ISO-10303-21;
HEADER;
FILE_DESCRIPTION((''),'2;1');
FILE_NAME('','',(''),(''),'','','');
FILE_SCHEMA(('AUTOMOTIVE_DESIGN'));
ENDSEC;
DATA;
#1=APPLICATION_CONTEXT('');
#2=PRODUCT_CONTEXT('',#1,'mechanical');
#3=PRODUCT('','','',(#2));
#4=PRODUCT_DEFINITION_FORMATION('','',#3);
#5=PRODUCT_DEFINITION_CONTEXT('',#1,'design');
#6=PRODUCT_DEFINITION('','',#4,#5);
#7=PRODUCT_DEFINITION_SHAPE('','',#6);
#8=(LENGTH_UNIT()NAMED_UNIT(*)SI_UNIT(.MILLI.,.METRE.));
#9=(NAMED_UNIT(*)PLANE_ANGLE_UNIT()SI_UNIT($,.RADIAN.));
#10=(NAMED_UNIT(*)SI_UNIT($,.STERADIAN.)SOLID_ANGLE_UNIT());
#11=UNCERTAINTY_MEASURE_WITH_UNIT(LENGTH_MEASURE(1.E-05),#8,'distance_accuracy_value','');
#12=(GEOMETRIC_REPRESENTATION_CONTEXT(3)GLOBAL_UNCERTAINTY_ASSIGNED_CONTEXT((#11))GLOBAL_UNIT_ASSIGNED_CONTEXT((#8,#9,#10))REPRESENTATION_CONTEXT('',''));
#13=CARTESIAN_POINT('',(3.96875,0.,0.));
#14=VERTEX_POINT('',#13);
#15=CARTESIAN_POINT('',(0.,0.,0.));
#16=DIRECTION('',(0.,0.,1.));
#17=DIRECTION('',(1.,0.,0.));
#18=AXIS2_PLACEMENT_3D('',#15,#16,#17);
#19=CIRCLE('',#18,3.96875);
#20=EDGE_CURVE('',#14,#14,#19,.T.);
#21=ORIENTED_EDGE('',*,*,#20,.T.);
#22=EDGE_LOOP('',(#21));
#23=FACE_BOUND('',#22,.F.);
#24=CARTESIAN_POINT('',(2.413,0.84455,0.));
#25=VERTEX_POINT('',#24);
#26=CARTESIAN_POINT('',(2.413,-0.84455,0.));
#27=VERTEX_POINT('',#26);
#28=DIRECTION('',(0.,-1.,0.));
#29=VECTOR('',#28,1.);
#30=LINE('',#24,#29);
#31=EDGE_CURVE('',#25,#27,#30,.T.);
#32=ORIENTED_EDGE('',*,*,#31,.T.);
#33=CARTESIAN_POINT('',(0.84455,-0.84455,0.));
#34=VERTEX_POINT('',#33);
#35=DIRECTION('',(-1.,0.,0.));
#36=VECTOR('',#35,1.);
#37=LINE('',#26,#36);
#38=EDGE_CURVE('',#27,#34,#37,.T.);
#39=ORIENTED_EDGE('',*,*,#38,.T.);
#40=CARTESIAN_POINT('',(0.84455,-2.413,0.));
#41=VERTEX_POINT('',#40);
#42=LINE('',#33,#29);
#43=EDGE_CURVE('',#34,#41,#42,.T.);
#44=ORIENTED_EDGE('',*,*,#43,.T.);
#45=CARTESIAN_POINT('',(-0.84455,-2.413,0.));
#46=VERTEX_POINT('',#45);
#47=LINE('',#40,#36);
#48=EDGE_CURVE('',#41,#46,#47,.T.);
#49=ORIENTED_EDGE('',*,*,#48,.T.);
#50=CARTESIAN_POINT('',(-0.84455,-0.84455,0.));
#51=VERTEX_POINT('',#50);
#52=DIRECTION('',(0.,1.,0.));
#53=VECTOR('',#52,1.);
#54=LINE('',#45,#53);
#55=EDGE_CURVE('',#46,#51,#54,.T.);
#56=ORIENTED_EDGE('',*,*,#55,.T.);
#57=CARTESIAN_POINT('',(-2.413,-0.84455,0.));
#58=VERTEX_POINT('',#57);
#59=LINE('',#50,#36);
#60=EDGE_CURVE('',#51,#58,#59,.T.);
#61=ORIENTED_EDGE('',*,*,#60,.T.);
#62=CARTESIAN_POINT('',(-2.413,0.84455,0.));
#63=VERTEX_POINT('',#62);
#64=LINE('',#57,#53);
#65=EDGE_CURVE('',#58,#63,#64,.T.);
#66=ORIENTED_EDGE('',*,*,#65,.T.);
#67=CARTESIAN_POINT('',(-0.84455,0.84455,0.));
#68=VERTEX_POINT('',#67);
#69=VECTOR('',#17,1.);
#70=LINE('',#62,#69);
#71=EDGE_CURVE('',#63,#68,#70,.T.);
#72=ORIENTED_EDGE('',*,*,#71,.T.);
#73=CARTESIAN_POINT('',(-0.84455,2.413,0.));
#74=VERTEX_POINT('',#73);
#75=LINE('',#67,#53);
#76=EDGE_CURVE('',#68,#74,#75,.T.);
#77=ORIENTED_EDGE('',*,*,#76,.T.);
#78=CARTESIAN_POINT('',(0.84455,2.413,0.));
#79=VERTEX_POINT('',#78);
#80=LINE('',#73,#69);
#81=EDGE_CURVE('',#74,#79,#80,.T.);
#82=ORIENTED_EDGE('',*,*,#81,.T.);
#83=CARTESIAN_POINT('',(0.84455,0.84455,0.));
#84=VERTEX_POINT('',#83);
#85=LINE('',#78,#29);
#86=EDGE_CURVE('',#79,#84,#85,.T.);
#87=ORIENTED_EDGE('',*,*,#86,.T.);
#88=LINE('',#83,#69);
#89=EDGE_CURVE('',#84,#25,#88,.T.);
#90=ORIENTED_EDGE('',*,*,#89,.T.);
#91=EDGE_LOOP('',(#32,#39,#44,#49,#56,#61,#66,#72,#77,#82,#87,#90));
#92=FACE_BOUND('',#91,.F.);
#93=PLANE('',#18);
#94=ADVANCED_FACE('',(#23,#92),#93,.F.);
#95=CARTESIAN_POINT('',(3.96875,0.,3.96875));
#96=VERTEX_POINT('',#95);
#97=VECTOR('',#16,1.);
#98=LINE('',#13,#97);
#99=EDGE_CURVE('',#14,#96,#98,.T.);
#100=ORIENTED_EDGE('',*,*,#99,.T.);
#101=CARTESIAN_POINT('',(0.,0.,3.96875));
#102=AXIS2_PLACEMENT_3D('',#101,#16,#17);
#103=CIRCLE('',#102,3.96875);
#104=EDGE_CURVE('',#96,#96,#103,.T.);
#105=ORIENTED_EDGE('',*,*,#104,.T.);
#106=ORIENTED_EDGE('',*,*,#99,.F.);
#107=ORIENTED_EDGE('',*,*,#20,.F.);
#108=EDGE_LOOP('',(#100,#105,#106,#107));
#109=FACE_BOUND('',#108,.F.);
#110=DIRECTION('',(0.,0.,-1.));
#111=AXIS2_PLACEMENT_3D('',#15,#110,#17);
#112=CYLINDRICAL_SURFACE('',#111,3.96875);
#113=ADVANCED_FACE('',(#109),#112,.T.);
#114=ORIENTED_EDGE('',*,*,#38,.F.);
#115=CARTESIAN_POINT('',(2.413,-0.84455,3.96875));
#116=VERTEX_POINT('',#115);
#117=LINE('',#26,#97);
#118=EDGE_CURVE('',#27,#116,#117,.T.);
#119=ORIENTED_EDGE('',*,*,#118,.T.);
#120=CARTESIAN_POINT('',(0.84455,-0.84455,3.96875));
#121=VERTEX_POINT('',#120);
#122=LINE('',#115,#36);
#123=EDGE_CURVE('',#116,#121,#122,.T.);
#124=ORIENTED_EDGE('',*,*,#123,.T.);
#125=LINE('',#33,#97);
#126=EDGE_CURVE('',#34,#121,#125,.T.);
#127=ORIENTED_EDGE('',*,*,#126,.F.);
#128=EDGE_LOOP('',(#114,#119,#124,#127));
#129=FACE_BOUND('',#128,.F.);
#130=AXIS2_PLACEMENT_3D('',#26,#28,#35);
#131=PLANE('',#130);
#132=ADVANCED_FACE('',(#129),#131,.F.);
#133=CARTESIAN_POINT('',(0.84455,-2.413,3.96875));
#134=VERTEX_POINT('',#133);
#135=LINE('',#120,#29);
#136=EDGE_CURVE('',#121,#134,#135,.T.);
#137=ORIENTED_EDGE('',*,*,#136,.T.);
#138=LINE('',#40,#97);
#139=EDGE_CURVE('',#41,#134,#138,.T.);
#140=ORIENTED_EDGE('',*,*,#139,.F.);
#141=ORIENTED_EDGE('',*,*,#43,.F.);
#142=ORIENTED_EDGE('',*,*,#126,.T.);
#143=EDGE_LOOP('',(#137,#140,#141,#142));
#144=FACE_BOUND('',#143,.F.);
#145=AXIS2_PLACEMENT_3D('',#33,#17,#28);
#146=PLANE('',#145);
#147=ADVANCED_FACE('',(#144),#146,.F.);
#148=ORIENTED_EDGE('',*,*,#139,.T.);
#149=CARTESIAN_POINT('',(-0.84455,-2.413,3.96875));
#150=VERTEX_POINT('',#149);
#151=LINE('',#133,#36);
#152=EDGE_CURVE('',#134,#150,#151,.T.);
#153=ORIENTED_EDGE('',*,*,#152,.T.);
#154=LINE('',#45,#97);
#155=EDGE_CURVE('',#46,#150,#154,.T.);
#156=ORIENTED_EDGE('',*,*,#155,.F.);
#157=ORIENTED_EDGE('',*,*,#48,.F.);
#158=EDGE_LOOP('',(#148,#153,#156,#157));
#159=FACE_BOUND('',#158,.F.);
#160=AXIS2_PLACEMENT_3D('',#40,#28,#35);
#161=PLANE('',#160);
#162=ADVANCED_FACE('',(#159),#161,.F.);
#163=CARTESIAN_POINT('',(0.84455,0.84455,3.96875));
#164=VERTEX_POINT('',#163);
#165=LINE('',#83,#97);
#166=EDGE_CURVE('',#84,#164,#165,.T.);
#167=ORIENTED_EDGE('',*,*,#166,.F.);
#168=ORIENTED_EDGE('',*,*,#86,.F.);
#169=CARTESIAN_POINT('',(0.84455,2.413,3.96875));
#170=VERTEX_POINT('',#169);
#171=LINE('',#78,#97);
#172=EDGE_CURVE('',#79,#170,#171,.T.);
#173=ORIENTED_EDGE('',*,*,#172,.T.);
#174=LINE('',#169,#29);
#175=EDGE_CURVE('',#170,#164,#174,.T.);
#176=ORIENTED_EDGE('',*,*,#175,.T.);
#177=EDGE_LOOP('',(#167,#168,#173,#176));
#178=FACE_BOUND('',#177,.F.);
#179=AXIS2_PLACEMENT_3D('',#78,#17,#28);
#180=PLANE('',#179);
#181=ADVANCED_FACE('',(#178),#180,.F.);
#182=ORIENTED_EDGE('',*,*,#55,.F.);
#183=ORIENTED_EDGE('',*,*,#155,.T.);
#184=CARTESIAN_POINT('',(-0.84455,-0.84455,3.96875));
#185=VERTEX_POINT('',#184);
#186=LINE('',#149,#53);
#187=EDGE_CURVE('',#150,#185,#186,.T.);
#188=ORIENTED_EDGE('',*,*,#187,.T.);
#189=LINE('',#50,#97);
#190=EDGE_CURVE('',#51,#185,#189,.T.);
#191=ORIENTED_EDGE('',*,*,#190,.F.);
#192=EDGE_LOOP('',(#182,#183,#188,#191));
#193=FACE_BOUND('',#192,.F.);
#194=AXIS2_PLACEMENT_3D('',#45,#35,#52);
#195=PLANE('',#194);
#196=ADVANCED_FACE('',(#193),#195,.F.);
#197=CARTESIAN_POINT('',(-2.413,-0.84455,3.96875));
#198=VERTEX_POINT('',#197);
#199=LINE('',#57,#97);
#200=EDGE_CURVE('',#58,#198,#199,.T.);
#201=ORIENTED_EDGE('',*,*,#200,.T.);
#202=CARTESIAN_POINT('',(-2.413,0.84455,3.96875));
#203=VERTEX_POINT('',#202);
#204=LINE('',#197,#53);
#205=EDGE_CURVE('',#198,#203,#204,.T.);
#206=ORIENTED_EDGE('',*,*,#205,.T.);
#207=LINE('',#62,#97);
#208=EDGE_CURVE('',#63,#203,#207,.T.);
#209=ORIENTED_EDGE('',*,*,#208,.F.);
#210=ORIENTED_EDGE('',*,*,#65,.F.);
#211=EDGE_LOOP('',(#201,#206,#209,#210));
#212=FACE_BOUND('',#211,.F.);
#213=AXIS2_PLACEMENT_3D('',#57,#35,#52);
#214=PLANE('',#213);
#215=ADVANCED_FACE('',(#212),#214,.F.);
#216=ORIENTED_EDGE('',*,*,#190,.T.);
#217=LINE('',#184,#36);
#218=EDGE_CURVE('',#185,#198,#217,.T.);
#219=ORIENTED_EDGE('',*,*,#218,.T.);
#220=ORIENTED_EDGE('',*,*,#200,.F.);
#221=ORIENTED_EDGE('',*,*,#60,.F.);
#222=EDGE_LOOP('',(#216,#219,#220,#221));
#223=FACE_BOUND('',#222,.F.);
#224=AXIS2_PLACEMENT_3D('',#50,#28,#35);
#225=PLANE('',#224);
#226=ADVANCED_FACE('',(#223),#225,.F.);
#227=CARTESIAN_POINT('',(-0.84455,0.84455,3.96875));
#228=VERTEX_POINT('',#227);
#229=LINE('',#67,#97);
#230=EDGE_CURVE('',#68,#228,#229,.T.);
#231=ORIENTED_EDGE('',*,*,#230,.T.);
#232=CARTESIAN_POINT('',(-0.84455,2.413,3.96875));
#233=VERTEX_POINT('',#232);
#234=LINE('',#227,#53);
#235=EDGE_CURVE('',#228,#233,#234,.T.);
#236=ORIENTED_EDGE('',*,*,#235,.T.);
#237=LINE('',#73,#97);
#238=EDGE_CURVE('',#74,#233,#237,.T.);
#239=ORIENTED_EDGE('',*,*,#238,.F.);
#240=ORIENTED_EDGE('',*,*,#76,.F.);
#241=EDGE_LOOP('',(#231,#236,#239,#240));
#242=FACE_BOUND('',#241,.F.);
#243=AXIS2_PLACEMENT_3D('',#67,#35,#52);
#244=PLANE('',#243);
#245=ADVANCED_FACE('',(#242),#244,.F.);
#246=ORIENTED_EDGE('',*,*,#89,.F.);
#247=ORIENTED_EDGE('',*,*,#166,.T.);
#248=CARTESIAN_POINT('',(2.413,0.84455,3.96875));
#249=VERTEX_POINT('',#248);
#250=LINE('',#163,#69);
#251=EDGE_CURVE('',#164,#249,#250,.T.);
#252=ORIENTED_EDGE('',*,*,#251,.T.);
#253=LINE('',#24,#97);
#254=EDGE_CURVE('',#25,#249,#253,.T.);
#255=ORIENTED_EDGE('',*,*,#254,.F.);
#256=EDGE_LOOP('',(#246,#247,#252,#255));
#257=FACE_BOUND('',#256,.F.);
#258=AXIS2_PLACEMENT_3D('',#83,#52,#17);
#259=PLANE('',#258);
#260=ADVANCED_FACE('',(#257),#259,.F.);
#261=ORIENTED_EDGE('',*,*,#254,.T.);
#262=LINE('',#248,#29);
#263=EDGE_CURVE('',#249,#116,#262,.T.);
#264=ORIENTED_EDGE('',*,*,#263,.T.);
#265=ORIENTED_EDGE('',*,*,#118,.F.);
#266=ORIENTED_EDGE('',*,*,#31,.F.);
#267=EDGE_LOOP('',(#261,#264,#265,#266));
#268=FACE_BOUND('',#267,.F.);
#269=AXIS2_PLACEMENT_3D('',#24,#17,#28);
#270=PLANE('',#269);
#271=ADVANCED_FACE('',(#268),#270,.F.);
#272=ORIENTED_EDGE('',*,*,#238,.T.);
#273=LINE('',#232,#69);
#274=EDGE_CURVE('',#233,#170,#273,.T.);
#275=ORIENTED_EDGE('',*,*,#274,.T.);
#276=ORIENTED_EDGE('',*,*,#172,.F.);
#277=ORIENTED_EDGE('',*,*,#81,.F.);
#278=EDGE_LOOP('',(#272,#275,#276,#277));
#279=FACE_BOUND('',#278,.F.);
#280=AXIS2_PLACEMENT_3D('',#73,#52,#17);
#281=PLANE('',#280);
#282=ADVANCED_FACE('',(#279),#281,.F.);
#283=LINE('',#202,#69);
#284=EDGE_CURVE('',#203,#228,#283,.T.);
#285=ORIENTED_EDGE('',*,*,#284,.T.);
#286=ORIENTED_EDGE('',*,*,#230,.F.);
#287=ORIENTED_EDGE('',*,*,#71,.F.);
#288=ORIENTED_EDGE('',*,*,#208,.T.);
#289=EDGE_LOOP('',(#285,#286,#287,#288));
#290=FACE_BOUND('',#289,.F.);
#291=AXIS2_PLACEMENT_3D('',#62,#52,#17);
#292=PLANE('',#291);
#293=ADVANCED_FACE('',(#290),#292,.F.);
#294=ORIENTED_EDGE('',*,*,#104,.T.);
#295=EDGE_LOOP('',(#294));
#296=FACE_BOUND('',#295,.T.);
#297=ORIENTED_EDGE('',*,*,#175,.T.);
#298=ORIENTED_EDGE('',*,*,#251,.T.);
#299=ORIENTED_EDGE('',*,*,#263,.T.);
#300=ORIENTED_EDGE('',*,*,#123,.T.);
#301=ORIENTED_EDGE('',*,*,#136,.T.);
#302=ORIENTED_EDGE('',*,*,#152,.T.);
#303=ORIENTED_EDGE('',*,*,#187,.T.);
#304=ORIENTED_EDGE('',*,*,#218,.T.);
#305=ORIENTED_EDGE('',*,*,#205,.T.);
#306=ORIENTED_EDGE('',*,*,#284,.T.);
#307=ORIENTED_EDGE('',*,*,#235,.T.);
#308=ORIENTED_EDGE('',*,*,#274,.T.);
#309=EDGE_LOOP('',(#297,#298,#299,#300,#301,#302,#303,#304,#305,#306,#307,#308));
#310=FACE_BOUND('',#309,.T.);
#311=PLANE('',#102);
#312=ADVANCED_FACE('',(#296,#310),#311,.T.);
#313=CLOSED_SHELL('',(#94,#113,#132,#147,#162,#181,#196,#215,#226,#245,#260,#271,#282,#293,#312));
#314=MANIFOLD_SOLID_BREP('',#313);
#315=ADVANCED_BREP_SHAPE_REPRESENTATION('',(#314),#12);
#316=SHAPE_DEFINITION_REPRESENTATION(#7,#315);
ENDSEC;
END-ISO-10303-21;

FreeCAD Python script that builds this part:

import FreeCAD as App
import Part
import Sketcher
Q = App.Units.Quantity


def add_polygon(sketch, points):
    """Adds a closed chain of lines whose ends are joined by coincident constraints."""
    first, n = sketch.GeometryCount, len(points)
    for a, b in zip(points, points[1:] + points[:1]):
        sketch.addGeometry(Part.LineSegment(App.Vector(*a, 0), App.Vector(*b, 0)), False)
    for i in range(n):
        sketch.addConstraint(Sketcher.Constraint("Coincident", first + i, 2, first + (i + 1) % n, 1))

doc = App.newDocument("Part")
params = doc.addObject("Spreadsheet::Sheet", "Params")
for row, (alias, value) in enumerate([
    ("sketch1_diameter", "0.3125 in"),
    ("pad1_length", "0.15625 in"),
], start=1):
    params.set(f"A{row}", alias)
    params.set(f"B{row}", "=" + value)
    params.setAlias(f"B{row}", alias)

body = doc.addObject("PartDesign::Body", "Body")

# Sketch on XY plane
sketch1 = doc.addObject("Sketcher::SketchObject", "Sketch")
body.addObject(sketch1)
sketch1.AttachmentSupport = (doc.XY_Plane, [""])
sketch1.MapMode = "FlatFace"
sketch1.addGeometry(Part.Circle(App.Vector(0, 0, 0), App.Vector(0, 0, 1), 4), False)  # 0
add_polygon(sketch1, [(0.8, 2.4), (0.8, 0.8), (2.4, 0.8), (2.4, -0.8), (0.8, -0.8), (0.8, -2.4), (-0.8, -2.4), (-0.8, -0.8), (-2.4, -0.8), (-2.4, 0.8), (-0.8, 0.8), (-0.8, 2.4)])  # lines 1-12
sketch1.addConstraint([
    Sketcher.Constraint("Vertical", 1),
    Sketcher.Constraint("Horizontal", 2),
    Sketcher.Constraint("Vertical", 3),
    Sketcher.Constraint("Horizontal", 4),
    Sketcher.Constraint("Vertical", 5),
    Sketcher.Constraint("Horizontal", 6),
    Sketcher.Constraint("Vertical", 7),
    Sketcher.Constraint("Horizontal", 8),
    Sketcher.Constraint("Vertical", 9),
    Sketcher.Constraint("Horizontal", 10),
    Sketcher.Constraint("Vertical", 11),
    Sketcher.Constraint("Horizontal", 12),
    Sketcher.Constraint("Coincident", 0, 3, -1, 1),
    Sketcher.Constraint("Symmetric", 1, 2, 7, 2, -1, 1),
    Sketcher.Constraint("Symmetric", 3, 2, 9, 2, -1, 1),
    Sketcher.Constraint("Symmetric", 5, 2, 11, 2, -1, 1),
    Sketcher.Constraint("Symmetric", 4, 2, 7, 2, -2),
    Sketcher.Constraint("Equal", 10, 1),
    Sketcher.Constraint("Equal", 12, 3),
    Sketcher.Constraint("Diameter", 0, Q("0.3125 in")),
    Sketcher.Constraint("DistanceX", 6, 2, 6, 1, Q("0.0665 in")),
    Sketcher.Constraint("DistanceX", -1, 1, 2, 2, Q("0.095 in")),
])
sketch1.setExpression("Constraints[31]", "Params.sketch1_diameter")
pad1 = doc.addObject("PartDesign::Pad", "Pad")
body.addObject(pad1)
pad1.Profile = sketch1
pad1.setExpression("Length", "Params.pad1_length")

doc.recompute()
